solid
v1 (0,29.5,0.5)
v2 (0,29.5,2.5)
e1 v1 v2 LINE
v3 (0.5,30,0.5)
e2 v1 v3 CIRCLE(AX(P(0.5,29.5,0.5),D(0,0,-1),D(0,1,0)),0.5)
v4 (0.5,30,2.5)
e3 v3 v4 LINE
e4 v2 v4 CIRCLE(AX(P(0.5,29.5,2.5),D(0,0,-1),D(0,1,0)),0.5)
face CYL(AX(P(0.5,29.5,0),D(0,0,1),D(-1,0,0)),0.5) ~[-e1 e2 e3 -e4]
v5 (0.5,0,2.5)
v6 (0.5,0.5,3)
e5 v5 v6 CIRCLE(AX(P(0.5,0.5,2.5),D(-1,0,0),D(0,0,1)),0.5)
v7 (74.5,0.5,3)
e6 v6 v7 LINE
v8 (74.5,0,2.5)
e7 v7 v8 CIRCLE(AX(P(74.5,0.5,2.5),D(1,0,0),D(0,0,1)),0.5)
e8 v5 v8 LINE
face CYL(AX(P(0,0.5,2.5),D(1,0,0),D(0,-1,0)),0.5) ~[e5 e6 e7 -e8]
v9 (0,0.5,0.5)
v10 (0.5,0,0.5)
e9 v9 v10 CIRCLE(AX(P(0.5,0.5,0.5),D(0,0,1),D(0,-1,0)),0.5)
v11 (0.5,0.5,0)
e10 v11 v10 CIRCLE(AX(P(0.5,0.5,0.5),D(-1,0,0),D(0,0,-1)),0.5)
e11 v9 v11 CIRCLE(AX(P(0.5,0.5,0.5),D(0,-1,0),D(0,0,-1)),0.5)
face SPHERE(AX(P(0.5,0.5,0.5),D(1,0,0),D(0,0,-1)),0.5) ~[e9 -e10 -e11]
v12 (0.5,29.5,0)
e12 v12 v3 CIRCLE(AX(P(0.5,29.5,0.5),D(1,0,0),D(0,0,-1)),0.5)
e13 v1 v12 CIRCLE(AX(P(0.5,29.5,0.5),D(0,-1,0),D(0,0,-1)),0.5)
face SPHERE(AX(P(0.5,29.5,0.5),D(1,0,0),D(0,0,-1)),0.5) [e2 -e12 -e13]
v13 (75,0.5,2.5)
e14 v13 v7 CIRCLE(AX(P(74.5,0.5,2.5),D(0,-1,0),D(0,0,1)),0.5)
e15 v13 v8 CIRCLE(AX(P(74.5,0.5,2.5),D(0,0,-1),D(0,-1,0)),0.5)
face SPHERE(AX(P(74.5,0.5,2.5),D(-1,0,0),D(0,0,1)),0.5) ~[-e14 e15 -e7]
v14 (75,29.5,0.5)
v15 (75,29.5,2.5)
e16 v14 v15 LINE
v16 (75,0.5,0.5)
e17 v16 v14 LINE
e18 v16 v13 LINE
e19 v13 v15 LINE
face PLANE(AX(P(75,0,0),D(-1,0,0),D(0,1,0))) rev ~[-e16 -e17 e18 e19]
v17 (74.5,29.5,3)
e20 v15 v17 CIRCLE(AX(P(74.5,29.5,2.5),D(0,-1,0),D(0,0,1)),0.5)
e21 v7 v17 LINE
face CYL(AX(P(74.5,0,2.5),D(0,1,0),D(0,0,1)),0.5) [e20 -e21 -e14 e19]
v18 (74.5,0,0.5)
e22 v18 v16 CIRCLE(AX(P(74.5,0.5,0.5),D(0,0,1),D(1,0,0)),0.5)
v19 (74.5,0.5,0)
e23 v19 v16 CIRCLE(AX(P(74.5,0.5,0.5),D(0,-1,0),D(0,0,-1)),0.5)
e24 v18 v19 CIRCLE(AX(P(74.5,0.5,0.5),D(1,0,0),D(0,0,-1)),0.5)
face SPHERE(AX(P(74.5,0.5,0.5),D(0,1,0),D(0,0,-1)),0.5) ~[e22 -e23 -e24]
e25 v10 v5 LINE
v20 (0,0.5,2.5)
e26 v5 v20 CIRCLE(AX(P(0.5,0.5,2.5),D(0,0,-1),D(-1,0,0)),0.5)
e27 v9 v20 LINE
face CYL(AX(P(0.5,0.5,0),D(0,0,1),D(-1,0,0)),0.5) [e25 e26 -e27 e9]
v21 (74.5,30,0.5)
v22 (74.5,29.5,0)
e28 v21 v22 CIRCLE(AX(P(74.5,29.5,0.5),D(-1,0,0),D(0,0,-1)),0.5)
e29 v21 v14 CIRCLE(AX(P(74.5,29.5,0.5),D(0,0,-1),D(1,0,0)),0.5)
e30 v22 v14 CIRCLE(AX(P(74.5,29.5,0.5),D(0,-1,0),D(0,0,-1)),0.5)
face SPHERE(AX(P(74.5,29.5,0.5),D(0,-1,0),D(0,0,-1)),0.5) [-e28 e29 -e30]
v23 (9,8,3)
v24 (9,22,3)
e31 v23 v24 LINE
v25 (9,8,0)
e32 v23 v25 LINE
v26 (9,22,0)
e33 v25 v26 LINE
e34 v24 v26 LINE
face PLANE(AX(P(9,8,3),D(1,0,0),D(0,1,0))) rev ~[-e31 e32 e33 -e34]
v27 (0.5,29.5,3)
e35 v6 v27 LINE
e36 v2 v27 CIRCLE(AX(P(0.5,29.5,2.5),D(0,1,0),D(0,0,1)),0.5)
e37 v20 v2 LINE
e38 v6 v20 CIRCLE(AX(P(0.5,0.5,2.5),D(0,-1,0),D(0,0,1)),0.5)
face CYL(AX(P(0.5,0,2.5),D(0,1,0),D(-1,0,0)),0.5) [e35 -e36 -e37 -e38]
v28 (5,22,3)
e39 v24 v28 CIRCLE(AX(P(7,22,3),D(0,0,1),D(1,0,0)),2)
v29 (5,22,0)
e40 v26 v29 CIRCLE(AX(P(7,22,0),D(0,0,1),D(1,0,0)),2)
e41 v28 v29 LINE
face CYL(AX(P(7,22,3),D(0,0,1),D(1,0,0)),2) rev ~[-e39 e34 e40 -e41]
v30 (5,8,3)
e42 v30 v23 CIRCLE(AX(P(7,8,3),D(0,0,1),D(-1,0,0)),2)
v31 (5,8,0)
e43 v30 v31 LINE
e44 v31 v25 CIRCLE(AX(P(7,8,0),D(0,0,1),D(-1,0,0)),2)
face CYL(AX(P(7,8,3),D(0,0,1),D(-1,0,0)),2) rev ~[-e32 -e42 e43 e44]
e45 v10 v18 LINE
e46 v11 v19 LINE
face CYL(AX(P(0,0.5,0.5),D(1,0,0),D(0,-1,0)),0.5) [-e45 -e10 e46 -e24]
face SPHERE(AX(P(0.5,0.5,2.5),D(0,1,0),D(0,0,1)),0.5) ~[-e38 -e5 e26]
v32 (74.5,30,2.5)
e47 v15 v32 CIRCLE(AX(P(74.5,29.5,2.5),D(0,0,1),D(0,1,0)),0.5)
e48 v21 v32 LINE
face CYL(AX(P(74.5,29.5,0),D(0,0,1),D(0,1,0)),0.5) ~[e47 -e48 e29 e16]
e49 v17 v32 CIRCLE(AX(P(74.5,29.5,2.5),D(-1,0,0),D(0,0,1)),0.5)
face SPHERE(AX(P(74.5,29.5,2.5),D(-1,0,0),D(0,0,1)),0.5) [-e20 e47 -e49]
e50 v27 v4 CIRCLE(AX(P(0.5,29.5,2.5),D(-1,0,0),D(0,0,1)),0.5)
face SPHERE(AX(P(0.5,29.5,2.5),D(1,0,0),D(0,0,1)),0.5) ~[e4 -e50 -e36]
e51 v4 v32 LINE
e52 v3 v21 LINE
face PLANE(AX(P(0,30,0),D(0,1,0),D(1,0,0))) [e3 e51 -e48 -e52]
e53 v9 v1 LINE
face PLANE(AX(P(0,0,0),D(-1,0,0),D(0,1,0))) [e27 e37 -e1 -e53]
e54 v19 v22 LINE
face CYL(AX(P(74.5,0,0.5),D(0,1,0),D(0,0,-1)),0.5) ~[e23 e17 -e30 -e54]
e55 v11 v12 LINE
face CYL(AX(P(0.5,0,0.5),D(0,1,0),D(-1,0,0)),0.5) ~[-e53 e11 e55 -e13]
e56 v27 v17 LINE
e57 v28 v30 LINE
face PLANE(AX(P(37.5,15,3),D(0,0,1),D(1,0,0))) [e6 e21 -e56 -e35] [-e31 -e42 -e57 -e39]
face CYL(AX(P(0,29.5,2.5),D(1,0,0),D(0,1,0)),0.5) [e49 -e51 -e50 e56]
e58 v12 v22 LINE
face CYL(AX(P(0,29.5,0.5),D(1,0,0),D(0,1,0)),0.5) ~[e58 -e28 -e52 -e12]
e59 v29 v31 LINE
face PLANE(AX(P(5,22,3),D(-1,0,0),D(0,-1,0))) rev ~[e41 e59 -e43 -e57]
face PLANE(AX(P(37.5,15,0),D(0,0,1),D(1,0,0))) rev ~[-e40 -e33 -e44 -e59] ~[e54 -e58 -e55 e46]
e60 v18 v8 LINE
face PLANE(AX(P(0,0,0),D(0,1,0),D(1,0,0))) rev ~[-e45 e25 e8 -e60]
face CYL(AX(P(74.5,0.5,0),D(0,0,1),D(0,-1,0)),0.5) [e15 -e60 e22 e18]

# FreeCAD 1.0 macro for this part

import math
import FreeCAD as App
import Part
import Sketcher
from FreeCAD import Vector
Q = App.Units.Quantity


def edges_at(feature, points):
    """Names of the edges that pass closest to the given points."""
    edges = feature.Shape.Edges
    near = lambda p: min(range(len(edges)), key=lambda i: edges[i].distToShape(Part.Vertex(*p))[0])
    return sorted({f"Edge{near(p) + 1}" for p in points})


def add_polygon(sketch, points):
    """Adds a closed chain of lines whose ends are joined by coincident constraints."""
    first, n = sketch.GeometryCount, len(points)
    for a, b in zip(points, points[1:] + points[:1]):
        sketch.addGeometry(Part.LineSegment(App.Vector(*a, 0), App.Vector(*b, 0)), False)
    for i in range(n):
        sketch.addConstraint(Sketcher.Constraint("Coincident", first + i, 2, first + (i + 1) % n, 1))

doc = App.newDocument("Part")
params = doc.addObject("Spreadsheet::Sheet", "Params")
for row, (alias, value) in enumerate([
    ("sketch1_width", "75 mm"),
    ("sketch1_height", "30 mm"),
    ("pad1_length", "3 mm"),
    ("sketch2_radius", "2 mm"),
    ("sketch2_height", "14 mm"),
    ("pocket1_length", "25 mm"),
    ("fillet_radius", "0.5 mm"),
], start=1):
    params.set(f"A{row}", alias)
    params.set(f"B{row}", "=" + value)
    params.setAlias(f"B{row}", alias)

body = doc.addObject("PartDesign::Body", "Body")

sketch1 = doc.addObject("Sketcher::SketchObject", "Sketch")
body.addObject(sketch1)
sketch1.AttachmentSupport = (doc.XY_Plane, [""])
sketch1.MapMode = "FlatFace"
add_polygon(sketch1, [(0, 30), (0, 0), (75, 0), (75, 30)])
sketch1.addConstraint([
    Sketcher.Constraint("Vertical", 0),
    Sketcher.Constraint("Horizontal", 1),
    Sketcher.Constraint("Vertical", 2),
    Sketcher.Constraint("Horizontal", 3),
    Sketcher.Constraint("Coincident", 0, 2, -1, 1),
    Sketcher.Constraint("DistanceX", 1, 1, 1, 2, Q("75 mm")),
    Sketcher.Constraint("DistanceY", 0, 2, 0, 1, Q("30 mm")),
])
sketch1.setExpression("Constraints[9]", "Params.sketch1_width")
sketch1.setExpression("Constraints[10]", "Params.sketch1_height")
pad1 = doc.addObject("PartDesign::Pad", "Pad")
body.addObject(pad1)
pad1.Profile = sketch1
pad1.setExpression("Length", "Params.pad1_length")

sketch2 = doc.addObject("Sketcher::SketchObject", "Sketch001")
body.addObject(sketch2)
sketch2.AttachmentSupport = (doc.XY_Plane, [""])
sketch2.MapMode = "FlatFace"
sketch2.AttachmentOffset = App.Placement(Vector(0, 0, 3), App.Rotation())
sketch2.addGeometry([
    Part.LineSegment(Vector(5, 22, 0), Vector(5, 8, 0)),
    Part.ArcOfCircle(Part.Circle(Vector(7, 8, 0), Vector(0, 0, 1), 2), math.radians(180), math.radians(360)),
    Part.LineSegment(Vector(9, 8, 0), Vector(9, 22, 0)),
    Part.ArcOfCircle(Part.Circle(Vector(7, 22, 0), Vector(0, 0, 1), 2), math.radians(0), math.radians(180)),
], False)
sketch2.addConstraint([
    Sketcher.Constraint("Tangent", 0, 2, 1, 1),
    Sketcher.Constraint("Tangent", 1, 2, 2, 1),
    Sketcher.Constraint("Tangent", 2, 2, 3, 1),
    Sketcher.Constraint("Tangent", 3, 2, 0, 1),
    Sketcher.Constraint("Vertical", 0),
    Sketcher.Constraint("Vertical", 2),
    Sketcher.Constraint("Radius", 1, Q("2 mm")),
    Sketcher.Constraint("DistanceY", 0, 2, 0, 1, Q("14 mm")),
    Sketcher.Constraint("DistanceX", -1, 1, 1, 3, Q("7 mm")),
    Sketcher.Constraint("DistanceY", -1, 1, 1, 3, Q("8 mm")),
])
sketch2.setExpression("Constraints[6]", "Params.sketch2_radius")
sketch2.setExpression("Constraints[7]", "Params.sketch2_height")
pocket1 = doc.addObject("PartDesign::Pocket", "Pocket")
body.addObject(pocket1)
pocket1.Profile = sketch2
pocket1.setExpression("Length", "Params.pocket1_length")
doc.recompute()

fillet = doc.addObject("PartDesign::Fillet", "Fillet")
body.addObject(fillet)
fillet.Base = (pocket1, edges_at(pocket1, [
    (37.5, 30, 3),
    (0, 15, 3),
    (37.5, 0, 3),
    (75, 15, 3),
    (75, 15, 0),
    (37.5, 0, 0),
    (37.5, 30, 0),
    (0, 15, 0),
    (75, 0, 1.5),
    (75, 30, 1.5),
    (0, 30, 1.5),
    (0, 0, 1.5),
]))
fillet.setExpression("Radius", "Params.fillet_radius")

doc.recompute()
